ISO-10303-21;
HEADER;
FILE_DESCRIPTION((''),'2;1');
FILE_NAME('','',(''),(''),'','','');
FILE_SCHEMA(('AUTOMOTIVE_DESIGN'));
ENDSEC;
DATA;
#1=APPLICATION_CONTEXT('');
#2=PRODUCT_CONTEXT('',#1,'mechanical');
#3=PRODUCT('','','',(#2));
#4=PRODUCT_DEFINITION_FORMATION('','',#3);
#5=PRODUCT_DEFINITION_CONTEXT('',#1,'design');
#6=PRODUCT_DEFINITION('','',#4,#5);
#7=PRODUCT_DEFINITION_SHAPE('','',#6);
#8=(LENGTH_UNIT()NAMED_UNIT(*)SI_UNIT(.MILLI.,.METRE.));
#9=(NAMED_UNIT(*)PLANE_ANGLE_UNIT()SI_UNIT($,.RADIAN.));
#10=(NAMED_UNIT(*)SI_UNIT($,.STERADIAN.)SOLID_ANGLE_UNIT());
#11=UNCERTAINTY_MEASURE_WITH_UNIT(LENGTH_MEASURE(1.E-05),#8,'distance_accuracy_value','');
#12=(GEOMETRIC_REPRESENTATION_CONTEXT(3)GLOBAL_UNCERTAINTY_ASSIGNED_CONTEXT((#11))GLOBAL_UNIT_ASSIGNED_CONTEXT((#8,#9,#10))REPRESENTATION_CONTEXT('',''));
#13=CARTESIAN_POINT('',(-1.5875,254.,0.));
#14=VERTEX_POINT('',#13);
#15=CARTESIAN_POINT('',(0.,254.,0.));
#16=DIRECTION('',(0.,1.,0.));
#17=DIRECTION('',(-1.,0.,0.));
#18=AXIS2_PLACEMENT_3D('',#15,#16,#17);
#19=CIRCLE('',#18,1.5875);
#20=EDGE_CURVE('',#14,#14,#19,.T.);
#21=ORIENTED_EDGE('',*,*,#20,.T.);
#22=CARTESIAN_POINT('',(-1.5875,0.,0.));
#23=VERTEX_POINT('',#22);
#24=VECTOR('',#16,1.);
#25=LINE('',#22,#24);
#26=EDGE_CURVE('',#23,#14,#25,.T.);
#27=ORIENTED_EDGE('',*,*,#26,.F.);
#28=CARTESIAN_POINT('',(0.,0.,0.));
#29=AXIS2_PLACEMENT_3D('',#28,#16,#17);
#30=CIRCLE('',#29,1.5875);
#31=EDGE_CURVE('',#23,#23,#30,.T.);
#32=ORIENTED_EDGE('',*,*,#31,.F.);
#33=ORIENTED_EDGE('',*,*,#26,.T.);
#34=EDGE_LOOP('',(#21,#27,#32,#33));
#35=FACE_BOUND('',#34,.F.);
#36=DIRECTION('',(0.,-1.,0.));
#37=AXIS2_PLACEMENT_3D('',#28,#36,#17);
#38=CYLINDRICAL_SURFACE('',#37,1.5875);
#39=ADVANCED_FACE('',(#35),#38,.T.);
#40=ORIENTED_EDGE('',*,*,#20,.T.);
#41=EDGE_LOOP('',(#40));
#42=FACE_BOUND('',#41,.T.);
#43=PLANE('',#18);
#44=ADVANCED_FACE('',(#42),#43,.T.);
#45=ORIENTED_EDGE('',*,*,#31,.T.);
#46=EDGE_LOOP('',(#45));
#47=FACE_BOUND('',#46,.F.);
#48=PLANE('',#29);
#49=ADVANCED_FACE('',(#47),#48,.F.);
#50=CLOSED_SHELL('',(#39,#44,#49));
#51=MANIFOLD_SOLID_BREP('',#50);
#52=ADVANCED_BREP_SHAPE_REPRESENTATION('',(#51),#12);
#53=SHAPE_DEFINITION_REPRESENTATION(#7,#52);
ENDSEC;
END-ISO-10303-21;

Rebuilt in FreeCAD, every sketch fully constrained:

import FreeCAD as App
import Part
import Sketcher
from FreeCAD import Vector
Q = App.Units.Quantity

doc = App.newDocument("Part")
body = doc.addObject("PartDesign::Body", "Body")

sketch1 = body.newObject("Sketcher::SketchObject", "Sketch")
sketch1.AttachmentSupport = (doc.getObject("XZ_Plane"), [""])
sketch1.MapMode = "FlatFace"
sketch1.addGeometry(Part.Circle(Vector(0, 0, 0), Vector(0, 0, 1), 1.5875), False)
sketch1.addConstraint([
    Sketcher.Constraint("Coincident", 0, 3, -1, 1),
    Sketcher.Constraint("Diameter", 0, Q("0.125 in")),
])
pad1 = body.newObject("PartDesign::Pad", "Pad")
pad1.Profile = sketch1
pad1.Length = Q("10 in")
pad1.Reversed = True

doc.recompute()
